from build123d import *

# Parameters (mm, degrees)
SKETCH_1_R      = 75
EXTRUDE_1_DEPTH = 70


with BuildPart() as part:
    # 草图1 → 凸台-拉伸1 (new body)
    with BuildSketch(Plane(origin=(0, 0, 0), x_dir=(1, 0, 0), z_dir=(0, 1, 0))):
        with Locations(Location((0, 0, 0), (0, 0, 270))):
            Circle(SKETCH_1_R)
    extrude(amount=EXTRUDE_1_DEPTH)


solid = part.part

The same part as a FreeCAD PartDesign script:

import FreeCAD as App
import Part
import Sketcher
from FreeCAD import Vector

doc = App.newDocument("Part")
body = doc.addObject("PartDesign::Body", "Body")

sketch1 = body.newObject("Sketcher::SketchObject", "Sketch")
sketch1.AttachmentSupport = (doc.getObject("XZ_Plane"), [""])
sketch1.MapMode = "FlatFace"
sketch1.addGeometry(Part.Circle(Vector(0, 0, 0), Vector(0, 0, 1), 75), False)
sketch1.addConstraint(Sketcher.Constraint("Coincident", 0, 3, -1, 1))
sketch1.addConstraint(Sketcher.Constraint("Diameter", 0, 150.0))
pad1 = body.newObject("PartDesign::Pad", "Pad")
pad1.Profile = sketch1
pad1.Length = 70
pad1.Reversed = True

doc.recompute()
